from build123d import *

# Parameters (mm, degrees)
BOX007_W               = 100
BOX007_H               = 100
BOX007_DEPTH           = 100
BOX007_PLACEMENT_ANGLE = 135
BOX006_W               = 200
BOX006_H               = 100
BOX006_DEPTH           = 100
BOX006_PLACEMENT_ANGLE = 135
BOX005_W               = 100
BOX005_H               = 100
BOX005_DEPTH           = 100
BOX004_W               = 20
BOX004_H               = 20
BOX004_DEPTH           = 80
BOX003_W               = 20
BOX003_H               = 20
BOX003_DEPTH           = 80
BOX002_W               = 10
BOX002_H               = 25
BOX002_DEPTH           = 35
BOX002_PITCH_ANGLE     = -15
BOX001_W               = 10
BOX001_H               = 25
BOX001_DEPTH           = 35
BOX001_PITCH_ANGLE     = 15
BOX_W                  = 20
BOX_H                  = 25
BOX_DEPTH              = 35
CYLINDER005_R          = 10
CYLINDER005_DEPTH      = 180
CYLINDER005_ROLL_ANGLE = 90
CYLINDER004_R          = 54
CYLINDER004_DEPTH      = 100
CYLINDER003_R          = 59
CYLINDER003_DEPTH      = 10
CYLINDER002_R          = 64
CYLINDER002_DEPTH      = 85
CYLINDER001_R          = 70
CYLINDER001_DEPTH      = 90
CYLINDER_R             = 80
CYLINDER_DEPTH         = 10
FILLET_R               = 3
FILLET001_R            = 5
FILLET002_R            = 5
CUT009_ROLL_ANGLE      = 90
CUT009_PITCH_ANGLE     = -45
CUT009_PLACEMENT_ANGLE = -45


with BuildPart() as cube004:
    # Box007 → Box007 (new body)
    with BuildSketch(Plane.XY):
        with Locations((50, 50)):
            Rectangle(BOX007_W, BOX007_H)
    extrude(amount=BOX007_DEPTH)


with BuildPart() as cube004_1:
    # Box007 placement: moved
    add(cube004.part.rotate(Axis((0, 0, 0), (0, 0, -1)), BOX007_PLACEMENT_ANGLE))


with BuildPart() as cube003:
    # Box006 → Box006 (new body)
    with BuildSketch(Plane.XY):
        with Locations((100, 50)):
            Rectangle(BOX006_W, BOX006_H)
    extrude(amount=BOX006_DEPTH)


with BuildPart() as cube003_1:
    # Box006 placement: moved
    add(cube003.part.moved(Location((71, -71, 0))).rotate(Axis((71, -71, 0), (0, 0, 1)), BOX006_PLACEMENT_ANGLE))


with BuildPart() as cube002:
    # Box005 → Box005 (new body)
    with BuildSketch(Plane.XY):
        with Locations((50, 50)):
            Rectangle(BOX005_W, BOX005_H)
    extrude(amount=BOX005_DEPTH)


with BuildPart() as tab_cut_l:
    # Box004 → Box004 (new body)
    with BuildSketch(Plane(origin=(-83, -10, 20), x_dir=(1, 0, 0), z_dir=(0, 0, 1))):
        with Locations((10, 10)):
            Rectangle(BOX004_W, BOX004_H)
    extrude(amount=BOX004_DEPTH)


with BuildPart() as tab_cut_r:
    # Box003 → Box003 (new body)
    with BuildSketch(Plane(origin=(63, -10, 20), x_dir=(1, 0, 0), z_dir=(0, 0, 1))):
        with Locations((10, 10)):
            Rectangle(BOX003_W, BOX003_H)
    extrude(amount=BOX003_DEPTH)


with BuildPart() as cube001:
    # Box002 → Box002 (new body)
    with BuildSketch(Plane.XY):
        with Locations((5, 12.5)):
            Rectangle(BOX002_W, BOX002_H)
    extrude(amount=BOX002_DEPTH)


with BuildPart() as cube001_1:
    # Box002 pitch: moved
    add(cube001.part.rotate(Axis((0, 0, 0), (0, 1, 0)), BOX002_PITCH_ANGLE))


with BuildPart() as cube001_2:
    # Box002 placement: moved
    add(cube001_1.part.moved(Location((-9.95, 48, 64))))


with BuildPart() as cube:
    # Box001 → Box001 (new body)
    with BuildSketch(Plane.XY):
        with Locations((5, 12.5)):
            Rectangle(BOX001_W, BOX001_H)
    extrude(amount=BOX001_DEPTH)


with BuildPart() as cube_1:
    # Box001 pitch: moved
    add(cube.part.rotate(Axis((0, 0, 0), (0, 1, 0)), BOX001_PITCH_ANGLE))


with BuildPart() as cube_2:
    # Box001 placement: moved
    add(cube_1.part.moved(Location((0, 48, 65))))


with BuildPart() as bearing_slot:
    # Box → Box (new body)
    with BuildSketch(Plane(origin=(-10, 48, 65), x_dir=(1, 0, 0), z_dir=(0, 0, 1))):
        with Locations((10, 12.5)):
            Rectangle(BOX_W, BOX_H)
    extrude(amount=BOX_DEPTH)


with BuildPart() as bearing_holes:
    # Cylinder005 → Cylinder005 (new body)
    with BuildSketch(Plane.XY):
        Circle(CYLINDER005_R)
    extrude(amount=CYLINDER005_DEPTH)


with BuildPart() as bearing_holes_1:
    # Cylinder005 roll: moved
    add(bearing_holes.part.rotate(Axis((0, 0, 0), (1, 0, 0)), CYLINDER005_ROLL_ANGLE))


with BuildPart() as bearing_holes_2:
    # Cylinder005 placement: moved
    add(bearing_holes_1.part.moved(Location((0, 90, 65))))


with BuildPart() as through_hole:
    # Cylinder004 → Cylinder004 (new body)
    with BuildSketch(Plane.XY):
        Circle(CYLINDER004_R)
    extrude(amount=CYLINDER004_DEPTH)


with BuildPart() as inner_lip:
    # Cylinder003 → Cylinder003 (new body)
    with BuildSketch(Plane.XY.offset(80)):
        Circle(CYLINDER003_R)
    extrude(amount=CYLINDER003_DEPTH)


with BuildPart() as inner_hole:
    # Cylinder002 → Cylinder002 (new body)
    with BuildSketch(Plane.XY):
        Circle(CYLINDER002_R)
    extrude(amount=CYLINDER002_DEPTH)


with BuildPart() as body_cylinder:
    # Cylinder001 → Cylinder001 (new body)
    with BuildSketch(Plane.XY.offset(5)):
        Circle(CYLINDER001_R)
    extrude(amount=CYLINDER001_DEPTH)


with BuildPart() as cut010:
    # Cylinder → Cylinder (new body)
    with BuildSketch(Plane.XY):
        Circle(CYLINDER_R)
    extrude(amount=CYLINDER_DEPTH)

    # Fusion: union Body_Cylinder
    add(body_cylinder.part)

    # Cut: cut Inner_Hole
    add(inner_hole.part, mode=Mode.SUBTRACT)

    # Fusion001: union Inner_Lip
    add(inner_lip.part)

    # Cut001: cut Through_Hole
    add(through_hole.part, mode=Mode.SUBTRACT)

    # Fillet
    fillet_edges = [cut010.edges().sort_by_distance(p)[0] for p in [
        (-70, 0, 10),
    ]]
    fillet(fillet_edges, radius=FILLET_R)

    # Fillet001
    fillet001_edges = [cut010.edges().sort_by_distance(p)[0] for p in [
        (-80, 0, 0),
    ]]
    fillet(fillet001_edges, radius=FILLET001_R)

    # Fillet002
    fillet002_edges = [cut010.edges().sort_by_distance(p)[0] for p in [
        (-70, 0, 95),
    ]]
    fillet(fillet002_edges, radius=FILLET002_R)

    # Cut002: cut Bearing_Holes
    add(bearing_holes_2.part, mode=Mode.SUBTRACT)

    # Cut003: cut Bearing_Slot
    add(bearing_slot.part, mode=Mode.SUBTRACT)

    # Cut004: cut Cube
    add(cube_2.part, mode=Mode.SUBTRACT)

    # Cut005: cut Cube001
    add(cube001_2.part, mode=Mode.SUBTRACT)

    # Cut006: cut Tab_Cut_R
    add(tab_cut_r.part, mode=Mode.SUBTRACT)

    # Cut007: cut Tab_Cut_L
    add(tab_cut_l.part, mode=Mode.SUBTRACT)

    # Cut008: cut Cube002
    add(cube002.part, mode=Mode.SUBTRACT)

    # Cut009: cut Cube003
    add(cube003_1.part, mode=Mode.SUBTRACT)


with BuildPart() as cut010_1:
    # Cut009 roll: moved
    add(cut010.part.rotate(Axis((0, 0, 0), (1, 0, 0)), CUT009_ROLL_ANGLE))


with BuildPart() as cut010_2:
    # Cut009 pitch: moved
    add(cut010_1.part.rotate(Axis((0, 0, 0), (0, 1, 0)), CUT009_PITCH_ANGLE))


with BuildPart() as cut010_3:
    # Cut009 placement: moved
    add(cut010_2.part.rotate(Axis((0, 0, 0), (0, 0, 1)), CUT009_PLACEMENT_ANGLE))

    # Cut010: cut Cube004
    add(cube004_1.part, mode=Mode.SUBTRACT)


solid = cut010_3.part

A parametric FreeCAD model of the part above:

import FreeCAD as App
import Part
import Sketcher
from FreeCAD import Vector
Q = App.Units.Quantity


def edges_at(feature, points):
    """Names of the edges that pass closest to the given points."""
    edges = feature.Shape.Edges
    near = lambda p: min(range(len(edges)), key=lambda i: edges[i].distToShape(Part.Vertex(*p))[0])
    return sorted({f"Edge{near(p) + 1}" for p in points})

doc = App.newDocument("Part")
body = doc.addObject("PartDesign::Body", "Body")

# Sketch on XY plane
sketch1 = body.newObject("Sketcher::SketchObject", "Sketch")
sketch1.AttachmentSupport = (doc.getObject("XY_Plane"), [""])
sketch1.MapMode = "FlatFace"
sketch1.addGeometry([
    Part.LineSegment(Vector(0, 100, 0), Vector(0, 0, 0)),
    Part.LineSegment(Vector(0, 0, 0), Vector(100, 0, 0)),
    Part.LineSegment(Vector(100, 0, 0), Vector(100, 100, 0)),
    Part.LineSegment(Vector(100, 100, 0), Vector(0, 100, 0)),
], False)
sketch1.addConstraint([
    Sketcher.Constraint("Coincident", 0, 2, 1, 1),
    Sketcher.Constraint("Coincident", 1, 2, 2, 1),
    Sketcher.Constraint("Coincident", 2, 2, 3, 1),
    Sketcher.Constraint("Coincident", 3, 2, 0, 1),
    Sketcher.Constraint("Vertical", 0),
    Sketcher.Constraint("Horizontal", 1),
    Sketcher.Constraint("Vertical", 2),
    Sketcher.Constraint("Horizontal", 3),
    Sketcher.Constraint("Coincident", 0, 2, -1, 1),
    Sketcher.Constraint("Equal", 3, 0),
    Sketcher.Constraint("DistanceX", 1, 1, 1, 2, Q("100 mm")),
])
pad1 = body.newObject("PartDesign::Pad", "Pad")
pad1.Profile = sketch1
pad1.Length = 100
body2 = doc.addObject("PartDesign::Body", "Body001")
doc.recompute()

body.Placement = App.Placement(Vector(0, 0, 0), App.Rotation(Vector(0, 0, -1), 135))
boolean = body2.newObject("PartDesign::Boolean", "Boolean")
boolean.Type = "Fuse"
boolean.addObjects([body])
body3 = doc.addObject("PartDesign::Body", "Body002")

# Sketch on XY plane
sketch2 = body3.newObject("Sketcher::SketchObject", "Sketch001")
sketch2.AttachmentSupport = (doc.getObject("XY_Plane002"), [""])
sketch2.MapMode = "FlatFace"
sketch2.addGeometry([
    Part.LineSegment(Vector(0, 100, 0), Vector(0, 0, 0)),
    Part.LineSegment(Vector(0, 0, 0), Vector(200, 0, 0)),
    Part.LineSegment(Vector(200, 0, 0), Vector(200, 100, 0)),
    Part.LineSegment(Vector(200, 100, 0), Vector(0, 100, 0)),
], False)
sketch2.addConstraint([
    Sketcher.Constraint("Coincident", 0, 2, 1, 1),
    Sketcher.Constraint("Coincident", 1, 2, 2, 1),
    Sketcher.Constraint("Coincident", 2, 2, 3, 1),
    Sketcher.Constraint("Coincident", 3, 2, 0, 1),
    Sketcher.Constraint("Vertical", 0),
    Sketcher.Constraint("Horizontal", 1),
    Sketcher.Constraint("Vertical", 2),
    Sketcher.Constraint("Horizontal", 3),
    Sketcher.Constraint("Coincident", 0, 2, -1, 1),
    Sketcher.Constraint("DistanceX", 1, 1, 1, 2, Q("200 mm")),
    Sketcher.Constraint("DistanceY", 0, 2, 0, 1, Q("100 mm")),
])
pad2 = body3.newObject("PartDesign::Pad", "Pad001")
pad2.Profile = sketch2
pad2.Length = 100
body4 = doc.addObject("PartDesign::Body", "Body003")
doc.recompute()

body3.Placement = App.Placement(Vector(71, -71, 0), App.Rotation(Vector(0, 0, 1), 135))
boolean2 = body4.newObject("PartDesign::Boolean", "Boolean001")
boolean2.Type = "Fuse"
boolean2.addObjects([body3])
body5 = doc.addObject("PartDesign::Body", "Body004")

# Sketch on XY plane
sketch3 = body5.newObject("Sketcher::SketchObject", "Sketch002")
sketch3.AttachmentSupport = (doc.getObject("XY_Plane004"), [""])
sketch3.MapMode = "FlatFace"
sketch3.addGeometry([
    Part.LineSegment(Vector(0, 100, 0), Vector(0, 0, 0)),
    Part.LineSegment(Vector(0, 0, 0), Vector(100, 0, 0)),
    Part.LineSegment(Vector(100, 0, 0), Vector(100, 100, 0)),
    Part.LineSegment(Vector(100, 100, 0), Vector(0, 100, 0)),
], False)
sketch3.addConstraint([
    Sketcher.Constraint("Coincident", 0, 2, 1, 1),
    Sketcher.Constraint("Coincident", 1, 2, 2, 1),
    Sketcher.Constraint("Coincident", 2, 2, 3, 1),
    Sketcher.Constraint("Coincident", 3, 2, 0, 1),
    Sketcher.Constraint("Vertical", 0),
    Sketcher.Constraint("Horizontal", 1),
    Sketcher.Constraint("Vertical", 2),
    Sketcher.Constraint("Horizontal", 3),
    Sketcher.Constraint("Coincident", 0, 2, -1, 1),
    Sketcher.Constraint("Equal", 3, 0),
    Sketcher.Constraint("DistanceX", 1, 1, 1, 2, Q("100 mm")),
])
pad3 = body5.newObject("PartDesign::Pad", "Pad002")
pad3.Profile = sketch3
pad3.Length = 100
body6 = doc.addObject("PartDesign::Body", "Body005")

# Sketch on XY plane
sketch4 = body6.newObject("Sketcher::SketchObject", "Sketch003")
sketch4.AttachmentSupport = (doc.getObject("XY_Plane005"), [""])
sketch4.MapMode = "FlatFace"
sketch4.AttachmentOffset = App.Placement(Vector(0, 0, 20), App.Rotation())
sketch4.addGeometry([
    Part.LineSegment(Vector(-83, 10, 0), Vector(-83, -10, 0)),
    Part.LineSegment(Vector(-83, -10, 0), Vector(-63, -10, 0)),
    Part.LineSegment(Vector(-63, -10, 0), Vector(-63, 10, 0)),
    Part.LineSegment(Vector(-63, 10, 0), Vector(-83, 10, 0)),
], False)
sketch4.addConstraint([
    Sketcher.Constraint("Coincident", 0, 2, 1, 1),
    Sketcher.Constraint("Coincident", 1, 2, 2, 1),
    Sketcher.Constraint("Coincident", 2, 2, 3, 1),
    Sketcher.Constraint("Coincident", 3, 2, 0, 1),
    Sketcher.Constraint("Vertical", 0),
    Sketcher.Constraint("Horizontal", 1),
    Sketcher.Constraint("Vertical", 2),
    Sketcher.Constraint("Horizontal", 3),
    Sketcher.Constraint("Equal", 3, 0),
    Sketcher.Constraint("DistanceX", 1, 1, 1, 2, Q("20 mm")),
    Sketcher.Constraint("DistanceX", 0, 2, -1, 1, Q("83 mm")),
    Sketcher.Constraint("DistanceY", 0, 2, -1, 1, Q("10 mm")),
])
pad4 = body6.newObject("PartDesign::Pad", "Pad003")
pad4.Profile = sketch4
pad4.Length = 80
body7 = doc.addObject("PartDesign::Body", "Body006")

# Sketch on XY plane
sketch5 = body7.newObject("Sketcher::SketchObject", "Sketch004")
sketch5.AttachmentSupport = (doc.getObject("XY_Plane006"), [""])
sketch5.MapMode = "FlatFace"
sketch5.AttachmentOffset = App.Placement(Vector(0, 0, 20), App.Rotation())
sketch5.addGeometry([
    Part.LineSegment(Vector(63, 10, 0), Vector(63, -10, 0)),
    Part.LineSegment(Vector(63, -10, 0), Vector(83, -10, 0)),
    Part.LineSegment(Vector(83, -10, 0), Vector(83, 10, 0)),
    Part.LineSegment(Vector(83, 10, 0), Vector(63, 10, 0)),
], False)
sketch5.addConstraint([
    Sketcher.Constraint("Coincident", 0, 2, 1, 1),
    Sketcher.Constraint("Coincident", 1, 2, 2, 1),
    Sketcher.Constraint("Coincident", 2, 2, 3, 1),
    Sketcher.Constraint("Coincident", 3, 2, 0, 1),
    Sketcher.Constraint("Vertical", 0),
    Sketcher.Constraint("Horizontal", 1),
    Sketcher.Constraint("Vertical", 2),
    Sketcher.Constraint("Horizontal", 3),
    Sketcher.Constraint("Equal", 3, 0),
    Sketcher.Constraint("DistanceX", 1, 1, 1, 2, Q("20 mm")),
    Sketcher.Constraint("DistanceX", -1, 1, 0, 2, Q("63 mm")),
    Sketcher.Constraint("DistanceY", 0, 2, -1, 1, Q("10 mm")),
])
pad5 = body7.newObject("PartDesign::Pad", "Pad004")
pad5.Profile = sketch5
pad5.Length = 80
body8 = doc.addObject("PartDesign::Body", "Body007")

# Sketch on XY plane
sketch6 = body8.newObject("Sketcher::SketchObject", "Sketch005")
sketch6.AttachmentSupport = (doc.getObject("XY_Plane007"), [""])
sketch6.MapMode = "FlatFace"
sketch6.addGeometry([
    Part.LineSegment(Vector(0, 25, 0), Vector(0, 0, 0)),
    Part.LineSegment(Vector(0, 0, 0), Vector(10, 0, 0)),
    Part.LineSegment(Vector(10, 0, 0), Vector(10, 25, 0)),
    Part.LineSegment(Vector(10, 25, 0), Vector(0, 25, 0)),
], False)
sketch6.addConstraint([
    Sketcher.Constraint("Coincident", 0, 2, 1, 1),
    Sketcher.Constraint("Coincident", 1, 2, 2, 1),
    Sketcher.Constraint("Coincident", 2, 2, 3, 1),
    Sketcher.Constraint("Coincident", 3, 2, 0, 1),
    Sketcher.Constraint("Vertical", 0),
    Sketcher.Constraint("Horizontal", 1),
    Sketcher.Constraint("Vertical", 2),
    Sketcher.Constraint("Horizontal", 3),
    Sketcher.Constraint("Coincident", 0, 2, -1, 1),
    Sketcher.Constraint("DistanceX", 1, 1, 1, 2, Q("10 mm")),
    Sketcher.Constraint("DistanceY", 0, 2, 0, 1, Q("25 mm")),
])
pad6 = body8.newObject("PartDesign::Pad", "Pad005")
pad6.Profile = sketch6
pad6.Length = 35
body9 = doc.addObject("PartDesign::Body", "Body008")
doc.recompute()

body8.Placement = App.Placement(Vector(0, 0, 0), App.Rotation(Vector(0, 1, 0), 345))
boolean3 = body9.newObject("PartDesign::Boolean", "Boolean002")
boolean3.Type = "Fuse"
boolean3.addObjects([body8])
body10 = doc.addObject("PartDesign::Body", "Body009")
doc.recompute()

body9.Placement = App.Placement(Vector(-9.95, 48, 64), App.Rotation(Vector(0, 0, 1), 0))
boolean4 = body10.newObject("PartDesign::Boolean", "Boolean003")
boolean4.Type = "Fuse"
boolean4.addObjects([body9])
body11 = doc.addObject("PartDesign::Body", "Body010")

# Sketch on XY plane
sketch7 = body11.newObject("Sketcher::SketchObject", "Sketch006")
sketch7.AttachmentSupport = (doc.getObject("XY_Plane010"), [""])
sketch7.MapMode = "FlatFace"
sketch7.addGeometry([
    Part.LineSegment(Vector(0, 25, 0), Vector(0, 0, 0)),
    Part.LineSegment(Vector(0, 0, 0), Vector(10, 0, 0)),
    Part.LineSegment(Vector(10, 0, 0), Vector(10, 25, 0)),
    Part.LineSegment(Vector(10, 25, 0), Vector(0, 25, 0)),
], False)
sketch7.addConstraint([
    Sketcher.Constraint("Coincident", 0, 2, 1, 1),
    Sketcher.Constraint("Coincident", 1, 2, 2, 1),
    Sketcher.Constraint("Coincident", 2, 2, 3, 1),
    Sketcher.Constraint("Coincident", 3, 2, 0, 1),
    Sketcher.Constraint("Vertical", 0),
    Sketcher.Constraint("Horizontal", 1),
    Sketcher.Constraint("Vertical", 2),
    Sketcher.Constraint("Horizontal", 3),
    Sketcher.Constraint("Coincident", 0, 2, -1, 1),
    Sketcher.Constraint("DistanceX", 1, 1, 1, 2, Q("10 mm")),
    Sketcher.Constraint("DistanceY", 0, 2, 0, 1, Q("25 mm")),
])
pad7 = body11.newObject("PartDesign::Pad", "Pad006")
pad7.Profile = sketch7
pad7.Length = 35
body12 = doc.addObject("PartDesign::Body", "Body011")
doc.recompute()

body11.Placement = App.Placement(Vector(0, 0, 0), App.Rotation(Vector(0, 1, 0), 15))
boolean5 = body12.newObject("PartDesign::Boolean", "Boolean004")
boolean5.Type = "Fuse"
boolean5.addObjects([body11])
body13 = doc.addObject("PartDesign::Body", "Body012")
doc.recompute()

body12.Placement = App.Placement(Vector(0, 48, 65), App.Rotation(Vector(0, 0, 1), 0))
boolean6 = body13.newObject("PartDesign::Boolean", "Boolean005")
boolean6.Type = "Fuse"
boolean6.addObjects([body12])
body14 = doc.addObject("PartDesign::Body", "Body013")

# Sketch on XY plane
sketch8 = body14.newObject("Sketcher::SketchObject", "Sketch007")
sketch8.AttachmentSupport = (doc.getObject("XY_Plane013"), [""])
sketch8.MapMode = "FlatFace"
sketch8.AttachmentOffset = App.Placement(Vector(0, 0, 65), App.Rotation())
sketch8.addGeometry([
    Part.LineSegment(Vector(-10, 73, 0), Vector(-10, 48, 0)),
    Part.LineSegment(Vector(-10, 48, 0), Vector(10, 48, 0)),
    Part.LineSegment(Vector(10, 48, 0), Vector(10, 73, 0)),
    Part.LineSegment(Vector(10, 73, 0), Vector(-10, 73, 0)),
], False)
sketch8.addConstraint([
    Sketcher.Constraint("Coincident", 0, 2, 1, 1),
    Sketcher.Constraint("Coincident", 1, 2, 2, 1),
    Sketcher.Constraint("Coincident", 2, 2, 3, 1),
    Sketcher.Constraint("Coincident", 3, 2, 0, 1),
    Sketcher.Constraint("Vertical", 0),
    Sketcher.Constraint("Horizontal", 1),
    Sketcher.Constraint("Vertical", 2),
    Sketcher.Constraint("Horizontal", 3),
    Sketcher.Constraint("DistanceX", 1, 1, 1, 2, Q("20 mm")),
    Sketcher.Constraint("DistanceY", 0, 2, 0, 1, Q("25 mm")),
    Sketcher.Constraint("DistanceX", 0, 2, -1, 1, Q("10 mm")),
    Sketcher.Constraint("DistanceY", -1, 1, 0, 2, Q("48 mm")),
])
pad8 = body14.newObject("PartDesign::Pad", "Pad007")
pad8.Profile = sketch8
pad8.Length = 35
body15 = doc.addObject("PartDesign::Body", "Body014")

# Sketch on XY plane
sketch9 = body15.newObject("Sketcher::SketchObject", "Sketch008")
sketch9.AttachmentSupport = (doc.getObject("XY_Plane014"), [""])
sketch9.MapMode = "FlatFace"
sketch9.addGeometry(Part.Circle(Vector(0, 0, 0), Vector(0, 0, 1), 10), False)
sketch9.addConstraint([
    Sketcher.Constraint("Coincident", 0, 3, -1, 1),
    Sketcher.Constraint("Diameter", 0, Q("20 mm")),
])
pad9 = body15.newObject("PartDesign::Pad", "Pad008")
pad9.Profile = sketch9
pad9.Length = 180
body16 = doc.addObject("PartDesign::Body", "Body015")
doc.recompute()

body15.Placement = App.Placement(Vector(0, 0, 0), App.Rotation(Vector(1, 0, 0), 90))
boolean7 = body16.newObject("PartDesign::Boolean", "Boolean006")
boolean7.Type = "Fuse"
boolean7.addObjects([body15])
body17 = doc.addObject("PartDesign::Body", "Body016")
doc.recompute()

body16.Placement = App.Placement(Vector(0, 90, 65), App.Rotation(Vector(0, 0, 1), 0))
boolean8 = body17.newObject("PartDesign::Boolean", "Boolean007")
boolean8.Type = "Fuse"
boolean8.addObjects([body16])
body18 = doc.addObject("PartDesign::Body", "Body017")

# Sketch on XY plane
sketch10 = body18.newObject("Sketcher::SketchObject", "Sketch009")
sketch10.AttachmentSupport = (doc.getObject("XY_Plane017"), [""])
sketch10.MapMode = "FlatFace"
sketch10.addGeometry(Part.Circle(Vector(0, 0, 0), Vector(0, 0, 1), 54), False)
sketch10.addConstraint([
    Sketcher.Constraint("Coincident", 0, 3, -1, 1),
    Sketcher.Constraint("Diameter", 0, Q("108 mm")),
])
pad10 = body18.newObject("PartDesign::Pad", "Pad009")
pad10.Profile = sketch10
pad10.Length = 100
body19 = doc.addObject("PartDesign::Body", "Body018")

# Sketch on XY plane
sketch11 = body19.newObject("Sketcher::SketchObject", "Sketch010")
sketch11.AttachmentSupport = (doc.getObject("XY_Plane018"), [""])
sketch11.MapMode = "FlatFace"
sketch11.AttachmentOffset = App.Placement(Vector(0, 0, 80), App.Rotation())
sketch11.addGeometry(Part.Circle(Vector(0, 0, 0), Vector(0, 0, 1), 59), False)
sketch11.addConstraint([
    Sketcher.Constraint("Coincident", 0, 3, -1, 1),
    Sketcher.Constraint("Diameter", 0, Q("118 mm")),
])
pad11 = body19.newObject("PartDesign::Pad", "Pad010")
pad11.Profile = sketch11
pad11.Length = 10
body20 = doc.addObject("PartDesign::Body", "Body019")

# Sketch on XY plane
sketch12 = body20.newObject("Sketcher::SketchObject", "Sketch011")
sketch12.AttachmentSupport = (doc.getObject("XY_Plane019"), [""])
sketch12.MapMode = "FlatFace"
sketch12.addGeometry(Part.Circle(Vector(0, 0, 0), Vector(0, 0, 1), 64), False)
sketch12.addConstraint([
    Sketcher.Constraint("Coincident", 0, 3, -1, 1),
    Sketcher.Constraint("Diameter", 0, Q("128 mm")),
])
pad12 = body20.newObject("PartDesign::Pad", "Pad011")
pad12.Profile = sketch12
pad12.Length = 85
body21 = doc.addObject("PartDesign::Body", "Body020")

# Sketch on XY plane
sketch13 = body21.newObject("Sketcher::SketchObject", "Sketch012")
sketch13.AttachmentSupport = (doc.getObject("XY_Plane020"), [""])
sketch13.MapMode = "FlatFace"
sketch13.AttachmentOffset = App.Placement(Vector(0, 0, 5), App.Rotation())
sketch13.addGeometry(Part.Circle(Vector(0, 0, 0), Vector(0, 0, 1), 70), False)
sketch13.addConstraint([
    Sketcher.Constraint("Coincident", 0, 3, -1, 1),
    Sketcher.Constraint("Diameter", 0, Q("140 mm")),
])
pad13 = body21.newObject("PartDesign::Pad", "Pad012")
pad13.Profile = sketch13
pad13.Length = 90
body22 = doc.addObject("PartDesign::Body", "Body021")
body22.AllowCompound = True

# Sketch on XY plane
sketch14 = body22.newObject("Sketcher::SketchObject", "Sketch013")
sketch14.AttachmentSupport = (doc.getObject("XY_Plane021"), [""])
sketch14.MapMode = "FlatFace"
sketch14.addGeometry(Part.Circle(Vector(0, 0, 0), Vector(0, 0, 1), 80), False)
sketch14.addConstraint([
    Sketcher.Constraint("Coincident", 0, 3, -1, 1),
    Sketcher.Constraint("Diameter", 0, Q("160 mm")),
])
pad14 = body22.newObject("PartDesign::Pad", "Pad013")
pad14.Profile = sketch14
pad14.Length = 10
doc.recompute()

boolean9 = body22.newObject("PartDesign::Boolean", "Boolean008")
boolean9.Type = "Fuse"
boolean9.addObjects([body21])
doc.recompute()

boolean10 = body22.newObject("PartDesign::Boolean", "Boolean009")
boolean10.Type = "Cut"
boolean10.addObjects([body20])
doc.recompute()

boolean11 = body22.newObject("PartDesign::Boolean", "Boolean010")
boolean11.Type = "Fuse"
boolean11.addObjects([body19])
doc.recompute()

boolean12 = body22.newObject("PartDesign::Boolean", "Boolean011")
boolean12.Type = "Cut"
boolean12.addObjects([body18])
doc.recompute()

fillet = body22.newObject("PartDesign::Fillet", "Fillet")
fillet.Base = (boolean12, edges_at(boolean12, [(-70, 0, 10)]))
fillet.Radius = 3
doc.recompute()

fillet2 = body22.newObject("PartDesign::Fillet", "Fillet001")
fillet2.Base = (fillet, edges_at(fillet, [(-80, 0, 0)]))
fillet2.Radius = 5
doc.recompute()

fillet3 = body22.newObject("PartDesign::Fillet", "Fillet002")
fillet3.Base = (fillet2, edges_at(fillet2, [(-70, 0, 95)]))
fillet3.Radius = 5
doc.recompute()

boolean13 = body22.newObject("PartDesign::Boolean", "Boolean012")
boolean13.Type = "Cut"
boolean13.addObjects([body17])
doc.recompute()

boolean14 = body22.newObject("PartDesign::Boolean", "Boolean013")
boolean14.Type = "Cut"
boolean14.addObjects([body14])
doc.recompute()

boolean15 = body22.newObject("PartDesign::Boolean", "Boolean014")
boolean15.Type = "Cut"
boolean15.addObjects([body13])
doc.recompute()

boolean16 = body22.newObject("PartDesign::Boolean", "Boolean015")
boolean16.Type = "Cut"
boolean16.addObjects([body10])
doc.recompute()

boolean17 = body22.newObject("PartDesign::Boolean", "Boolean016")
boolean17.Type = "Cut"
boolean17.addObjects([body7])
doc.recompute()

boolean18 = body22.newObject("PartDesign::Boolean", "Boolean017")
boolean18.Type = "Cut"
boolean18.addObjects([body6])
doc.recompute()

boolean19 = body22.newObject("PartDesign::Boolean", "Boolean018")
boolean19.Type = "Cut"
boolean19.addObjects([body5])
doc.recompute()

boolean20 = body22.newObject("PartDesign::Boolean", "Boolean019")
boolean20.Type = "Cut"
boolean20.addObjects([body4])
body23 = doc.addObject("PartDesign::Body", "Body022")
body23.AllowCompound = True
doc.recompute()

body22.Placement = App.Placement(Vector(0, 0, 0), App.Rotation(Vector(1, 0, 0), 90))
boolean21 = body23.newObject("PartDesign::Boolean", "Boolean020")
boolean21.Type = "Fuse"
boolean21.addObjects([body22])
body24 = doc.addObject("PartDesign::Body", "Body023")
body24.AllowCompound = True
doc.recompute()

body23.Placement = App.Placement(Vector(0, 0, 0), App.Rotation(Vector(0, 1, 0), 315))
boolean22 = body24.newObject("PartDesign::Boolean", "Boolean021")
boolean22.Type = "Fuse"
boolean22.addObjects([body23])
body25 = doc.addObject("PartDesign::Body", "Body024")
body25.AllowCompound = True
doc.recompute()

body24.Placement = App.Placement(Vector(0, 0, 0), App.Rotation(Vector(0, 0, 1), 315))
boolean23 = body25.newObject("PartDesign::Boolean", "Boolean022")
boolean23.Type = "Fuse"
boolean23.addObjects([body24])
doc.recompute()

boolean24 = body25.newObject("PartDesign::Boolean", "Boolean023")
boolean24.Type = "Cut"
boolean24.addObjects([body2])

doc.recompute()
